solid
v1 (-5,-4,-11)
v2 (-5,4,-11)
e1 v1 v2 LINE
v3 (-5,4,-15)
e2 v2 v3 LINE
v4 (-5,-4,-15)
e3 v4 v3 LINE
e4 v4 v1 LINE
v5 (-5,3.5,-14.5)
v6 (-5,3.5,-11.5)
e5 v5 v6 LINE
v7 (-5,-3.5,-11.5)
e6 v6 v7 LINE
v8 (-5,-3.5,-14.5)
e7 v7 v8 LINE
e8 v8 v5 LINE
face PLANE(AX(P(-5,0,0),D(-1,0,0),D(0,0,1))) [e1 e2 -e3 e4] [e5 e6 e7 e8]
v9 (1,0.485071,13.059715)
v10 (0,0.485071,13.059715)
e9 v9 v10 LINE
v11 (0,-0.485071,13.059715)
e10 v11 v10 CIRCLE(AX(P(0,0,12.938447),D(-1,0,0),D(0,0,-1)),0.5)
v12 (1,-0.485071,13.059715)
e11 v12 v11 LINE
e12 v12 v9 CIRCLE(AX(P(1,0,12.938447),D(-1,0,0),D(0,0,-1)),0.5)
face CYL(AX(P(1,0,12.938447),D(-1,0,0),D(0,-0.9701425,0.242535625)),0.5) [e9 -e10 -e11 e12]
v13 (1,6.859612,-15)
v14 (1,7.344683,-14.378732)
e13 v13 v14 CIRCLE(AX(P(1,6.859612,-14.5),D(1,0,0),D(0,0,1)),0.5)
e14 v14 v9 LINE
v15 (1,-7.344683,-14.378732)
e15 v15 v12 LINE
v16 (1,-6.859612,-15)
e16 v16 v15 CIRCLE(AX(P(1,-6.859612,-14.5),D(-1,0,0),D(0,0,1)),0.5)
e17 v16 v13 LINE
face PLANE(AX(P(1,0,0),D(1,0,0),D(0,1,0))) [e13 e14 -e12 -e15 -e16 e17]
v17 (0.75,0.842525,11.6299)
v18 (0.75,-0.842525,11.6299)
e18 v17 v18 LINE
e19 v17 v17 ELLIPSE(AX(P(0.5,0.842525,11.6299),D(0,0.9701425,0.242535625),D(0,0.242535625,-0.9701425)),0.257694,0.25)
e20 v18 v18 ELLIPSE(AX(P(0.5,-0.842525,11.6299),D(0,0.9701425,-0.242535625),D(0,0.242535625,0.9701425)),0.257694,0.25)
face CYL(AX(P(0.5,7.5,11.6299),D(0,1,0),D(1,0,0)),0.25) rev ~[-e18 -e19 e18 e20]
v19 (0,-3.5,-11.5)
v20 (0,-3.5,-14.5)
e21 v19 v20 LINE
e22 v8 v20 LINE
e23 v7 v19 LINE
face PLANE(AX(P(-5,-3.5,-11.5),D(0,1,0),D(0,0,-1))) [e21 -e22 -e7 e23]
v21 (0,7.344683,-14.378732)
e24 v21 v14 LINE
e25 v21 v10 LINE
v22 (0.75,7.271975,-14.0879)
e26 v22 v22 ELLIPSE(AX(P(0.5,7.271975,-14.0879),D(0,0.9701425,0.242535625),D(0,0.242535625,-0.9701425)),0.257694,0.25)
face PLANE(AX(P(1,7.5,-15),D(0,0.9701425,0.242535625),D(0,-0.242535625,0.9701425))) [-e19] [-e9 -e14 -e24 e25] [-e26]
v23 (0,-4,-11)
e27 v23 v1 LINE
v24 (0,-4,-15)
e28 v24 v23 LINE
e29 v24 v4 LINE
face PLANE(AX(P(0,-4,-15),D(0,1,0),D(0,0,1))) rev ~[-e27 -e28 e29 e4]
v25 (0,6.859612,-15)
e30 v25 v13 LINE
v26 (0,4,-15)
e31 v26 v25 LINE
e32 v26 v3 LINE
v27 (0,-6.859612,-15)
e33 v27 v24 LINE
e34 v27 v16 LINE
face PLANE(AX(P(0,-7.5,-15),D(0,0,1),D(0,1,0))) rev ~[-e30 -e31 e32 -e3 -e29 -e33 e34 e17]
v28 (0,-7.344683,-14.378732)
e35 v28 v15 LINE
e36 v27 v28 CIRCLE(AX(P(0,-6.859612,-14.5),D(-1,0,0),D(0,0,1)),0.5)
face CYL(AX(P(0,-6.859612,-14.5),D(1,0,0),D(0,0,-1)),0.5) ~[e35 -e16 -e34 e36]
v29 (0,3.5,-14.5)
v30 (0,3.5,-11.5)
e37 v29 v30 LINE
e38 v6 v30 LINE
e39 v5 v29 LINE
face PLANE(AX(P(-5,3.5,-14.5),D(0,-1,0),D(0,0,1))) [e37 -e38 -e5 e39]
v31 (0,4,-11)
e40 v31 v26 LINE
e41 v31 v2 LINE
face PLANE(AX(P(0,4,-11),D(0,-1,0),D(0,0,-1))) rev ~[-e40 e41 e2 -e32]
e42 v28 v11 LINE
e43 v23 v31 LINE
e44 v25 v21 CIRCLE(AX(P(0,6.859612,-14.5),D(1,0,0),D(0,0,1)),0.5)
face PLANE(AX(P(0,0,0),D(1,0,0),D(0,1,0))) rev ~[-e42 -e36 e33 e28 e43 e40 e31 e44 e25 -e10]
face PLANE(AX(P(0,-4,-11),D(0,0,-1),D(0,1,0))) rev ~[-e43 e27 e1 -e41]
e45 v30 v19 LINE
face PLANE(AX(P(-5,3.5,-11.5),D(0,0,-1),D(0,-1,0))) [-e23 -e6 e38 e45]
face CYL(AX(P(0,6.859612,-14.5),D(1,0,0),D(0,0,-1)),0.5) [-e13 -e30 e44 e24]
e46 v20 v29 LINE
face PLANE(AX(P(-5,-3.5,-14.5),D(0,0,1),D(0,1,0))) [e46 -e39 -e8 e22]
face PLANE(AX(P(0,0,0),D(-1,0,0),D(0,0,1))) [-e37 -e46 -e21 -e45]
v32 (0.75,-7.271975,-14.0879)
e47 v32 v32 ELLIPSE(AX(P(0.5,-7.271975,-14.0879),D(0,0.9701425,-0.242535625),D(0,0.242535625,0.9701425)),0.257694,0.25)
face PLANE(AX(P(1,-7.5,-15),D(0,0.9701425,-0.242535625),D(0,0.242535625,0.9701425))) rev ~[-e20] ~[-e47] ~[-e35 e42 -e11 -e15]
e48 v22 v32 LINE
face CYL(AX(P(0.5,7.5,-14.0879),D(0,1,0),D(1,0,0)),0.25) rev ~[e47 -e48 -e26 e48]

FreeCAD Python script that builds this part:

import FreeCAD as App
import Part
import Sketcher
from FreeCAD import Vector
Q = App.Units.Quantity


def edges_at(feature, points):
    """Names of the edges that pass closest to the given points."""
    edges = feature.Shape.Edges
    near = lambda p: min(range(len(edges)), key=lambda i: edges[i].distToShape(Part.Vertex(*p))[0])
    return sorted({f"Edge{near(p) + 1}" for p in points})


def add_polygon(sketch, points):
    """Adds a closed chain of lines whose ends are joined by coincident constraints."""
    first, n = sketch.GeometryCount, len(points)
    for a, b in zip(points, points[1:] + points[:1]):
        sketch.addGeometry(Part.LineSegment(App.Vector(*a, 0), App.Vector(*b, 0)), False)
    for i in range(n):
        sketch.addConstraint(Sketcher.Constraint("Coincident", first + i, 2, first + (i + 1) % n, 1))

doc = App.newDocument("Part")
params = doc.addObject("Spreadsheet::Sheet", "Params")
for row, (alias, value) in enumerate([
    ("sketch1_width", "15 mm"),
    ("sketch1_height", "30 mm"),
    ("pad1_length", "1 mm"),
    ("sketch2_diameter", "0.5 mm"),
    ("pocket1_length", "20 mm"),
    ("sketch3_height", "30 mm"),
    ("sketch3_width", "7.5 mm"),
    ("pocket2_length", "20 mm"),
    ("sketch4_height", "30 mm"),
    ("sketch4_width", "7.5 mm"),
    ("pocket3_length", "20 mm"),
    ("fillet_radius", "0.5 mm"),
    ("sketch5_width", "8 mm"),
    ("sketch5_height", "4 mm"),
    ("pad2_length", "5 mm"),
    ("sketch6_width", "7 mm"),
    ("sketch6_height", "3 mm"),
    ("pocket4_length", "5 mm"),
], start=1):
    params.set(f"A{row}", alias)
    params.set(f"B{row}", "=" + value)
    params.setAlias(f"B{row}", alias)

body = doc.addObject("PartDesign::Body", "Body")

# Sketch on YZ plane
sketch1 = body.newObject("Sketcher::SketchObject", "Sketch")
sketch1.AttachmentSupport = (doc.getObject("YZ_Plane"), [""])
sketch1.MapMode = "FlatFace"
add_polygon(sketch1, [(8, -15), (8, 15), (-8, 15), (-8, -15)])  # lines 0-3
sketch1.addConstraint([
    Sketcher.Constraint("Vertical", 0),
    Sketcher.Constraint("Horizontal", 1),
    Sketcher.Constraint("Vertical", 2),
    Sketcher.Constraint("Horizontal", 3),
    Sketcher.Constraint("Symmetric", 0, 2, 2, 2, -1, 1),
    Sketcher.Constraint("DistanceX", 1, 2, 1, 1, Q("15 mm")),
    Sketcher.Constraint("DistanceY", 0, 1, 0, 2, Q("30 mm")),
])
sketch1.setExpression("Constraints[9]", "Params.sketch1_width")
sketch1.setExpression("Constraints[10]", "Params.sketch1_height")
pad1 = body.newObject("PartDesign::Pad", "Pad")
pad1.Profile = sketch1
pad1.setExpression("Length", "Params.pad1_length")

# Sketch on XZ plane
sketch2 = body.newObject("Sketcher::SketchObject", "Sketch001")
sketch2.AttachmentSupport = (doc.getObject("XZ_Plane"), [""])
sketch2.MapMode = "FlatFace"
sketch2.AttachmentOffset = App.Placement(Vector(0, 0, -7.5), App.Rotation())
sketch2.addGeometry([
    Part.Circle(Vector(0.5, 11.63, 0), Vector(0, 0, 1), 0.25),
    Part.Circle(Vector(0.5, -14.09, 0), Vector(0, 0, 1), 0.25),
], False)
sketch2.addConstraint([
    Sketcher.Constraint("Equal", 0, 1),
    Sketcher.Constraint("Vertical", 0, 3, 1, 3),
    Sketcher.Constraint("Diameter", 0, Q("0.5 mm")),
    Sketcher.Constraint("DistanceX", -1, 1, 0, 3, Q("0.5 mm")),
    Sketcher.Constraint("DistanceY", -1, 1, 0, 3, Q("11.63 mm")),
    Sketcher.Constraint("DistanceY", 1, 3, -1, 1, Q("14.088 mm")),
])
sketch2.setExpression("Constraints[2]", "Params.sketch2_diameter")
pocket1 = body.newObject("PartDesign::Pocket", "Pocket")
pocket1.Profile = sketch2
pocket1.setExpression("Length", "Params.pocket1_length")
pocket1.Reversed = True

# Sketch on YZ plane
sketch3 = body.newObject("Sketcher::SketchObject", "Sketch002")
sketch3.AttachmentSupport = (doc.getObject("YZ_Plane"), [""])
sketch3.MapMode = "FlatFace"
sketch3.AttachmentOffset = App.Placement(Vector(0, 0, 1), App.Rotation())
add_polygon(sketch3, [(-8, -15), (0, 15), (-8, 15)])  # lines 0-2
sketch3.addConstraint([
    Sketcher.Constraint("Horizontal", 1),
    Sketcher.Constraint("Vertical", 2),
    Sketcher.Constraint("PointOnObject", 0, 2, -2),
    Sketcher.Constraint("DistanceY", 2, 2, 2, 1, Q("30 mm")),
    Sketcher.Constraint("DistanceX", 1, 2, 1, 1, Q("7.5 mm")),
    Sketcher.Constraint("DistanceY", -1, 1, 0, 2, Q("15 mm")),
])
sketch3.setExpression("Constraints[6]", "Params.sketch3_height")
sketch3.setExpression("Constraints[7]", "Params.sketch3_width")
pocket2 = body.newObject("PartDesign::Pocket", "Pocket001")
pocket2.Profile = sketch3
pocket2.setExpression("Length", "Params.pocket2_length")

# Sketch on YZ plane
sketch4 = body.newObject("Sketcher::SketchObject", "Sketch003")
sketch4.AttachmentSupport = (doc.getObject("YZ_Plane"), [""])
sketch4.MapMode = "FlatFace"
sketch4.AttachmentOffset = App.Placement(Vector(0, 0, 1), App.Rotation())
add_polygon(sketch4, [(0, 15), (8, -15), (8, 15)])  # lines 0-2
sketch4.addConstraint([
    Sketcher.Constraint("Vertical", 1),
    Sketcher.Constraint("Horizontal", 2),
    Sketcher.Constraint("PointOnObject", 2, 2, -2),
    Sketcher.Constraint("DistanceY", 1, 1, 1, 2, Q("30 mm")),
    Sketcher.Constraint("DistanceX", 2, 2, 2, 1, Q("7.5 mm")),
    Sketcher.Constraint("DistanceY", 0, 2, -1, 1, Q("15 mm")),
])
sketch4.setExpression("Constraints[6]", "Params.sketch4_height")
sketch4.setExpression("Constraints[7]", "Params.sketch4_width")
pocket3 = body.newObject("PartDesign::Pocket", "Pocket002")
pocket3.Profile = sketch4
pocket3.setExpression("Length", "Params.pocket3_length")
doc.recompute()

fillet = body.newObject("PartDesign::Fillet", "Fillet")
fillet.Base = (pocket3, edges_at(pocket3, [(0.5, 0, 15), (0.5, 7.5, -15), (0.5, -7.5, -15)]))
fillet.setExpression("Radius", "Params.fillet_radius")

# Sketch on YZ plane
sketch5 = body.newObject("Sketcher::SketchObject", "Sketch004")
sketch5.AttachmentSupport = (doc.getObject("YZ_Plane"), [""])
sketch5.MapMode = "FlatFace"
add_polygon(sketch5, [(4, -15), (-4, -15), (-4, -11), (4, -11)])  # lines 0-3
sketch5.addConstraint([
    Sketcher.Constraint("Horizontal", 0),
    Sketcher.Constraint("Vertical", 1),
    Sketcher.Constraint("Horizontal", 2),
    Sketcher.Constraint("Vertical", 3),
    Sketcher.Constraint("DistanceX", 0, 2, 0, 1, Q("8 mm")),
    Sketcher.Constraint("DistanceY", 1, 1, 1, 2, Q("4 mm")),
    Sketcher.Constraint("DistanceX", 0, 2, -1, 1, Q("4 mm")),
    Sketcher.Constraint("DistanceY", 0, 2, -1, 1, Q("15 mm")),
])
sketch5.setExpression("Constraints[8]", "Params.sketch5_width")
sketch5.setExpression("Constraints[9]", "Params.sketch5_height")
pad2 = body.newObject("PartDesign::Pad", "Pad001")
pad2.Profile = sketch5
pad2.setExpression("Length", "Params.pad2_length")
pad2.Reversed = True

# Sketch on YZ plane
sketch6 = body.newObject("Sketcher::SketchObject", "Sketch005")
sketch6.AttachmentSupport = (doc.getObject("YZ_Plane"), [""])
sketch6.MapMode = "FlatFace"
sketch6.AttachmentOffset = App.Placement(Vector(0, 0, -5), App.Rotation())
add_polygon(sketch6, [(-3.5, -14.5), (-3.5, -11.5), (3.5, -11.5), (3.5, -14.5)])  # lines 0-3
sketch6.addConstraint([
    Sketcher.Constraint("Vertical", 0),
    Sketcher.Constraint("Horizontal", 1),
    Sketcher.Constraint("Vertical", 2),
    Sketcher.Constraint("Horizontal", 3),
    Sketcher.Constraint("DistanceX", 1, 1, 1, 2, Q("7 mm")),
    Sketcher.Constraint("DistanceY", 0, 1, 0, 2, Q("3 mm")),
    Sketcher.Constraint("DistanceX", 0, 2, -1, 1, Q("3.5 mm")),
    Sketcher.Constraint("DistanceY", 0, 2, -1, 1, Q("11.5 mm")),
])
sketch6.setExpression("Constraints[8]", "Params.sketch6_width")
sketch6.setExpression("Constraints[9]", "Params.sketch6_height")
pocket4 = body.newObject("PartDesign::Pocket", "Pocket003")
pocket4.Profile = sketch6
pocket4.setExpression("Length", "Params.pocket4_length")
pocket4.Reversed = True

doc.recompute()
